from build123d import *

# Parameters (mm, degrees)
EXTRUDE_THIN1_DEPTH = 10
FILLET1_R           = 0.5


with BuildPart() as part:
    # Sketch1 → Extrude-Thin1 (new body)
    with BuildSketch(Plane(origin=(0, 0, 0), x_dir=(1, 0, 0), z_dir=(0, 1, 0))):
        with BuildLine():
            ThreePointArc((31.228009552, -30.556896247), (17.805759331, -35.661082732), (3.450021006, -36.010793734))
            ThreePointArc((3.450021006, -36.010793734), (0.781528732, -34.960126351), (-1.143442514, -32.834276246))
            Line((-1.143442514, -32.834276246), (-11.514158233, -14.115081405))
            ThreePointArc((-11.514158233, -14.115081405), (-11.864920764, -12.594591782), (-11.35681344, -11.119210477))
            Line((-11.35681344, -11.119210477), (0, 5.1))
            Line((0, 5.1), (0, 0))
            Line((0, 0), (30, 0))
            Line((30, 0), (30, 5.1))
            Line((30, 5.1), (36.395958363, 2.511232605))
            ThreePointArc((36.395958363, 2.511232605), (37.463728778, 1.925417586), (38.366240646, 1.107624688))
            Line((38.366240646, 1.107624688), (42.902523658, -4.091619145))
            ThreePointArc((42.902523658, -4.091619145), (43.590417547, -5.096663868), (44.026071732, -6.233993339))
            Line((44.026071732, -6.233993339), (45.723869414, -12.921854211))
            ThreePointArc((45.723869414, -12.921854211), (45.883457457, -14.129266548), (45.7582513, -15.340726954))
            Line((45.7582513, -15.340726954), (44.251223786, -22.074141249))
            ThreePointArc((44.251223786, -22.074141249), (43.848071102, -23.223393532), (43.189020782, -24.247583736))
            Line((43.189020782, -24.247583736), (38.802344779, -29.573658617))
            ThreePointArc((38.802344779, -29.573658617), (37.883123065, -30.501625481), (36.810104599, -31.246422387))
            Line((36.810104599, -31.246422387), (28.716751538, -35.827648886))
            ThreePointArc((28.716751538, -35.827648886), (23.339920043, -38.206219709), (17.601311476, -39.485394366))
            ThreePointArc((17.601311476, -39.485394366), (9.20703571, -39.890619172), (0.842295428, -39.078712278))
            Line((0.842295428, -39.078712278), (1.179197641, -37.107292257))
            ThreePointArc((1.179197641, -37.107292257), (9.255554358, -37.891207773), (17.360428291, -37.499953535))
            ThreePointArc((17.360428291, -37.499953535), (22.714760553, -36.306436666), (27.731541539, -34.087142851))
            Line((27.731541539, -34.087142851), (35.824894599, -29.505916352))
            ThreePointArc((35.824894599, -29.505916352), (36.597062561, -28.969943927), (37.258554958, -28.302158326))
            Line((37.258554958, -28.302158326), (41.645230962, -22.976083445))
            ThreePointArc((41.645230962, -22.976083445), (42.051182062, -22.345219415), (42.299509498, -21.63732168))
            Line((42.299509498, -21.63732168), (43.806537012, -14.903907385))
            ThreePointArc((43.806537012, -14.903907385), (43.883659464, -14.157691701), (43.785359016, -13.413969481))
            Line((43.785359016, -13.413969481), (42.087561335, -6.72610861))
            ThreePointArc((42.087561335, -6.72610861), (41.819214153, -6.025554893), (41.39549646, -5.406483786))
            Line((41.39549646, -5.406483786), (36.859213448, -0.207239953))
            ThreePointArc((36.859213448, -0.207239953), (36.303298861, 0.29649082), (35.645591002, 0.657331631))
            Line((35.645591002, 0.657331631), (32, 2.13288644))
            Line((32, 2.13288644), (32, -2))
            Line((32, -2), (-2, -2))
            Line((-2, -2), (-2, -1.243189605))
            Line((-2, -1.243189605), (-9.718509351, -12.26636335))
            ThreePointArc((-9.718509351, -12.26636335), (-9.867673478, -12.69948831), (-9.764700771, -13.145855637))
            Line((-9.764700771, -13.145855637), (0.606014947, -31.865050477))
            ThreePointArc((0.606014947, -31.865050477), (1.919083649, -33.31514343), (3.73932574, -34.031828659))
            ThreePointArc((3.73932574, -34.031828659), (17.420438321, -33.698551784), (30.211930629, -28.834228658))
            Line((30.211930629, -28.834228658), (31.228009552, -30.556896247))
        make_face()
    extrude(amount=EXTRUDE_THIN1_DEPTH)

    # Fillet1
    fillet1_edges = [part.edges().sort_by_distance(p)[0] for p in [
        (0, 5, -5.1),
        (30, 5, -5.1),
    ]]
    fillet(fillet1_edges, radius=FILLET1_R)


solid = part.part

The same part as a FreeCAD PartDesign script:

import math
import FreeCAD as App
import Part
import Sketcher
Q = App.Units.Quantity


def edges_at(feature, points):
    """Names of the edges that pass closest to the given points."""
    edges = feature.Shape.Edges
    near = lambda p: min(range(len(edges)), key=lambda i: edges[i].distToShape(Part.Vertex(*p))[0])
    return sorted({f"Edge{near(p) + 1}" for p in points})

doc = App.newDocument("Part")
body = doc.addObject("PartDesign::Body", "Body")

# Sketch on XZ plane
sketch1 = body.newObject("Sketcher::SketchObject", "Sketch")
sketch1.AttachmentSupport = (doc.getObject("XZ_Plane"), [""])
sketch1.MapMode = "FlatFace"
sketch1.addGeometry(Part.ArcOfCircle(Part.Circle(App.Vector(9.606298, -6.10071, 0), App.Vector(0, 0, 1), 42.559118), math.radians(59.466673), math.radians(98.317149)), False)
sketch1.addGeometry(Part.LineSegment(App.Vector(31.22801, 30.556896, 0), App.Vector(30.211931, 28.834229, 0)), False)
sketch1.addGeometry(Part.ArcOfCircle(Part.Circle(App.Vector(9.606298, -6.10071, 0), App.Vector(0, 0, 1), 40.559118), math.radians(59.466673), math.radians(98.317149)), False)
sketch1.addGeometry(Part.ArcOfCircle(Part.Circle(App.Vector(4.360139, 29.785209, 0), App.Vector(0, 0, 1), 4.291758), math.radians(98.317149), math.radians(151.012887)), False)
sketch1.addGeometry(Part.LineSegment(App.Vector(0.606015, 31.86505, 0), App.Vector(-9.764701, 13.145856, 0)), False)
sketch1.addGeometry(Part.ArcOfCircle(Part.Circle(App.Vector(-9.037688, 12.74308, 0), App.Vector(0, 0, 1), 0.831129), math.radians(151.012887), math.radians(215)), False)
sketch1.addGeometry(Part.LineSegment(App.Vector(-9.718509, 12.266363, 0), App.Vector(-2, 1.24319, 0)), False)
sketch1.addGeometry(Part.LineSegment(App.Vector(-2, 1.24319, 0), App.Vector(-2, 2, 0)), False)
sketch1.addGeometry(Part.LineSegment(App.Vector(-2, 2, 0), App.Vector(32, 2, 0)), False)
sketch1.addGeometry(Part.LineSegment(App.Vector(32, 2, 0), App.Vector(32, -2.132886, 0)), False)
sketch1.addGeometry(Part.LineSegment(App.Vector(32, -2.132886, 0), App.Vector(35.645591, -0.657332, 0)), False)
sketch1.addGeometry(Part.ArcOfCircle(Part.Circle(App.Vector(34.442061, 2.316179, 0), App.Vector(0, 0, 1), 3.207842), math.radians(-67.964334), math.radians(-41.10434)), False)
sketch1.addGeometry(Part.LineSegment(App.Vector(36.859213, 0.20724, 0), App.Vector(41.395496, 5.406484, 0)), False)
sketch1.addGeometry(Part.ArcOfCircle(Part.Circle(App.Vector(38.978344, 7.515423, 0), App.Vector(0, 0, 1), 3.207842), math.radians(-41.10434), math.radians(-14.244345)), False)
sketch1.addGeometry(Part.LineSegment(App.Vector(42.087561, 6.726109, 0), App.Vector(43.785359, 13.413969, 0)), False)
sketch1.addGeometry(Part.ArcOfCircle(Part.Circle(App.Vector(40.676142, 14.203283, 0), App.Vector(0, 0, 1), 3.207842), math.radians(-14.244345), math.radians(12.615649)), False)
sketch1.addGeometry(Part.LineSegment(App.Vector(43.806537, 14.903907, 0), App.Vector(42.299509, 21.637322, 0)), False)
sketch1.addGeometry(Part.ArcOfCircle(Part.Circle(App.Vector(39.169114, 20.936698, 0), App.Vector(0, 0, 1), 3.207842), math.radians(12.615649), math.radians(39.475644)), False)
sketch1.addGeometry(Part.LineSegment(App.Vector(41.645231, 22.976083, 0), App.Vector(37.258555, 28.302158, 0)), False)
sketch1.addGeometry(Part.ArcOfCircle(Part.Circle(App.Vector(33.296238, 25.038704, 0), App.Vector(0, 0, 1), 5.133234), math.radians(39.475644), math.radians(60.488055)), False)
sketch1.addGeometry(Part.LineSegment(App.Vector(35.824895, 29.505916, 0), App.Vector(27.731542, 34.087143, 0)), False)
sketch1.addGeometry(Part.ArcOfCircle(Part.Circle(App.Vector(14.004071, 9.835719, 0), App.Vector(0, 0, 1), 27.867096), math.radians(60.488055), math.radians(83.082411)), False)
sketch1.addGeometry(Part.ArcOfCircle(Part.Circle(App.Vector(10.614349, -18.103522, 0), App.Vector(0, 0, 1), 56.011213), math.radians(83.082411), math.radians(99.697775)), False)
sketch1.addGeometry(Part.LineSegment(App.Vector(1.179198, 37.107292, 0), App.Vector(0.842295, 39.078712, 0)), False)
sketch1.addGeometry(Part.ArcOfCircle(Part.Circle(App.Vector(10.614349, -18.103522, 0), App.Vector(0, 0, 1), 58.011213), math.radians(83.082411), math.radians(99.697775)), False)
sketch1.addGeometry(Part.ArcOfCircle(Part.Circle(App.Vector(14.004071, 9.835719, 0), App.Vector(0, 0, 1), 29.867096), math.radians(60.488055), math.radians(83.082411)), False)
sketch1.addGeometry(Part.LineSegment(App.Vector(28.716752, 35.827649, 0), App.Vector(36.810105, 31.246422, 0)), False)
sketch1.addGeometry(Part.ArcOfCircle(Part.Circle(App.Vector(33.296238, 25.038704, 0), App.Vector(0, 0, 1), 7.133234), math.radians(39.475644), math.radians(60.488055)), False)
sketch1.addGeometry(Part.LineSegment(App.Vector(38.802345, 29.573659, 0), App.Vector(43.189021, 24.247584, 0)), False)
sketch1.addGeometry(Part.ArcOfCircle(Part.Circle(App.Vector(39.169114, 20.936698, 0), App.Vector(0, 0, 1), 5.207842), math.radians(12.615649), math.radians(39.475644)), False)
sketch1.addGeometry(Part.LineSegment(App.Vector(44.251224, 22.074141, 0), App.Vector(45.758251, 15.340727, 0)), False)
sketch1.addGeometry(Part.ArcOfCircle(Part.Circle(App.Vector(40.676142, 14.203283, 0), App.Vector(0, 0, 1), 5.207842), math.radians(-14.244345), math.radians(12.615649)), False)
sketch1.addGeometry(Part.LineSegment(App.Vector(45.723869, 12.921854, 0), App.Vector(44.026072, 6.233993, 0)), False)
sketch1.addGeometry(Part.ArcOfCircle(Part.Circle(App.Vector(38.978344, 7.515423, 0), App.Vector(0, 0, 1), 5.207842), math.radians(-41.10434), math.radians(-14.244345)), False)
sketch1.addGeometry(Part.LineSegment(App.Vector(42.902524, 4.091619, 0), App.Vector(38.366241, -1.107625, 0)), False)
sketch1.addGeometry(Part.ArcOfCircle(Part.Circle(App.Vector(34.442061, 2.316179, 0), App.Vector(0, 0, 1), 5.207842), math.radians(-67.964334), math.radians(-41.10434)), False)
sketch1.addGeometry(Part.LineSegment(App.Vector(36.395958, -2.511233, 0), App.Vector(30, -5.1, 0)), False)
sketch1.addGeometry(Part.LineSegment(App.Vector(30, -5.1, 0), App.Vector(30, 0, 0)), False)
sketch1.addGeometry(Part.LineSegment(App.Vector(30, 0, 0), App.Vector(0, 0, 0)), False)
sketch1.addGeometry(Part.LineSegment(App.Vector(0, 0, 0), App.Vector(0, -5.1, 0)), False)
sketch1.addGeometry(Part.LineSegment(App.Vector(0, -5.1, 0), App.Vector(-11.356813, 11.11921, 0)), False)
sketch1.addGeometry(Part.ArcOfCircle(Part.Circle(App.Vector(-9.037688, 12.74308, 0), App.Vector(0, 0, 1), 2.831129), math.radians(151.012887), math.radians(215)), False)
sketch1.addGeometry(Part.LineSegment(App.Vector(-11.514158, 14.115081, 0), App.Vector(-1.143443, 32.834276, 0)), False)
sketch1.addGeometry(Part.ArcOfCircle(Part.Circle(App.Vector(4.360139, 29.785209, 0), App.Vector(0, 0, 1), 6.291758), math.radians(98.317149), math.radians(151.012887)), False)
sketch1.addConstraint(Sketcher.Constraint("Coincident", 0, 1, 1, 1))
sketch1.addConstraint(Sketcher.Constraint("Coincident", 1, 2, 2, 1))
sketch1.addConstraint(Sketcher.Constraint("Tangent", 2, 2, 3, 1))
sketch1.addConstraint(Sketcher.Constraint("Tangent", 3, 2, 4, 1))
sketch1.addConstraint(Sketcher.Constraint("Tangent", 4, 2, 5, 1))
sketch1.addConstraint(Sketcher.Constraint("Tangent", 5, 2, 6, 1))
sketch1.addConstraint(Sketcher.Constraint("Coincident", 6, 2, 7, 1))
sketch1.addConstraint(Sketcher.Constraint("Coincident", 7, 2, 8, 1))
sketch1.addConstraint(Sketcher.Constraint("Coincident", 8, 2, 9, 1))
sketch1.addConstraint(Sketcher.Constraint("Coincident", 9, 2, 10, 1))
sketch1.addConstraint(Sketcher.Constraint("Tangent", 10, 2, 11, 1))
sketch1.addConstraint(Sketcher.Constraint("Tangent", 11, 2, 12, 1))
sketch1.addConstraint(Sketcher.Constraint("Tangent", 12, 2, 13, 1))
sketch1.addConstraint(Sketcher.Constraint("Tangent", 13, 2, 14, 1))
sketch1.addConstraint(Sketcher.Constraint("Tangent", 14, 2, 15, 1))
sketch1.addConstraint(Sketcher.Constraint("Tangent", 15, 2, 16, 1))
sketch1.addConstraint(Sketcher.Constraint("Tangent", 16, 2, 17, 1))
sketch1.addConstraint(Sketcher.Constraint("Tangent", 17, 2, 18, 1))
sketch1.addConstraint(Sketcher.Constraint("Tangent", 18, 2, 19, 1))
sketch1.addConstraint(Sketcher.Constraint("Tangent", 19, 2, 20, 1))
sketch1.addConstraint(Sketcher.Constraint("Tangent", 20, 2, 21, 1))
sketch1.addConstraint(Sketcher.Constraint("Tangent", 21, 2, 22, 1))
sketch1.addConstraint(Sketcher.Constraint("Coincident", 22, 2, 23, 1))
sketch1.addConstraint(Sketcher.Constraint("Coincident", 23, 2, 24, 2))
sketch1.addConstraint(Sketcher.Constraint("Tangent", 24, 1, 25, 2))
sketch1.addConstraint(Sketcher.Constraint("Tangent", 25, 1, 26, 1))
sketch1.addConstraint(Sketcher.Constraint("Tangent", 26, 2, 27, 2))
sketch1.addConstraint(Sketcher.Constraint("Tangent", 27, 1, 28, 1))
sketch1.addConstraint(Sketcher.Constraint("Tangent", 28, 2, 29, 2))
sketch1.addConstraint(Sketcher.Constraint("Tangent", 29, 1, 30, 1))
sketch1.addConstraint(Sketcher.Constraint("Tangent", 30, 2, 31, 2))
sketch1.addConstraint(Sketcher.Constraint("Tangent", 31, 1, 32, 1))
sketch1.addConstraint(Sketcher.Constraint("Tangent", 32, 2, 33, 2))
sketch1.addConstraint(Sketcher.Constraint("Tangent", 33, 1, 34, 1))
sketch1.addConstraint(Sketcher.Constraint("Tangent", 34, 2, 35, 2))
sketch1.addConstraint(Sketcher.Constraint("Tangent", 35, 1, 36, 1))
sketch1.addConstraint(Sketcher.Constraint("Coincident", 36, 2, 37, 1))
sketch1.addConstraint(Sketcher.Constraint("Coincident", 37, 2, 38, 1))
sketch1.addConstraint(Sketcher.Constraint("Coincident", 38, 2, 39, 1))
sketch1.addConstraint(Sketcher.Constraint("Coincident", 39, 2, 40, 1))
sketch1.addConstraint(Sketcher.Constraint("Tangent", 40, 2, 41, 2))
sketch1.addConstraint(Sketcher.Constraint("Tangent", 41, 1, 42, 1))
sketch1.addConstraint(Sketcher.Constraint("Tangent", 42, 2, 43, 2))
sketch1.addConstraint(Sketcher.Constraint("Tangent", 43, 1, 0, 2))
sketch1.addConstraint(Sketcher.Constraint("Vertical", 7))
sketch1.addConstraint(Sketcher.Constraint("Horizontal", 8))
sketch1.addConstraint(Sketcher.Constraint("Vertical", 9))
sketch1.addConstraint(Sketcher.Constraint("Vertical", 37))
sketch1.addConstraint(Sketcher.Constraint("Horizontal", 38))
sketch1.addConstraint(Sketcher.Constraint("Vertical", 39))
sketch1.addConstraint(Sketcher.Constraint("Coincident", 38, 2, -1, 1))
sketch1.addConstraint(Sketcher.Constraint("Coincident", 2, 3, 0, 3))
sketch1.addConstraint(Sketcher.Constraint("Coincident", 24, 3, 22, 3))
sketch1.addConstraint(Sketcher.Constraint("Coincident", 25, 3, 21, 3))
sketch1.addConstraint(Sketcher.Constraint("Coincident", 27, 3, 19, 3))
sketch1.addConstraint(Sketcher.Constraint("Coincident", 29, 3, 17, 3))
sketch1.addConstraint(Sketcher.Constraint("Coincident", 31, 3, 15, 3))
sketch1.addConstraint(Sketcher.Constraint("Coincident", 33, 3, 13, 3))
sketch1.addConstraint(Sketcher.Constraint("Coincident", 35, 3, 11, 3))
sketch1.addConstraint(Sketcher.Constraint("Coincident", 41, 3, 5, 3))
sketch1.addConstraint(Sketcher.Constraint("Coincident", 43, 3, 3, 3))
sketch1.addConstraint(Sketcher.Constraint("Equal", 11, 13))
sketch1.addConstraint(Sketcher.Constraint("Equal", 13, 15))
sketch1.addConstraint(Sketcher.Constraint("Equal", 15, 17))
sketch1.addConstraint(Sketcher.Constraint("Equal", 29, 31))
sketch1.addConstraint(Sketcher.Constraint("Equal", 31, 33))
sketch1.addConstraint(Sketcher.Constraint("Equal", 33, 35))
sketch1.addConstraint(Sketcher.Constraint("Parallel", 20, 26))
sketch1.addConstraint(Sketcher.Constraint("Parallel", 18, 28))
sketch1.addConstraint(Sketcher.Constraint("Parallel", 10, 36))
sketch1.addConstraint(Sketcher.Constraint("Parallel", 6, 40))
sketch1.addConstraint(Sketcher.Constraint("Parallel", 4, 42))
sketch1.addConstraint(Sketcher.Constraint("Horizontal", 36, 2, 39, 2))
sketch1.addConstraint(Sketcher.Constraint("Equal", 12, 14))
sketch1.addConstraint(Sketcher.Constraint("Equal", 14, 16))
sketch1.addConstraint(Sketcher.Constraint("Equal", 16, 18))
sketch1.addConstraint(Sketcher.Constraint("Equal", 1, 23))
sketch1.addConstraint(Sketcher.Constraint("Equal", 34, 36))
sketch1.addConstraint(Sketcher.Constraint("DistanceX", 8, 1, 8, 2, 34.0))
sketch1.addConstraint(Sketcher.Constraint("DistanceX", 38, 2, 38, 1, 30.0))
sketch1.addConstraint(Sketcher.Constraint("Angle", 6, Q("-55 deg")))
sketch1.addConstraint(Sketcher.Constraint("Distance", 1, 2.0))
sketch1.addConstraint(Sketcher.Constraint("DistanceY", 37, 1, 37, 2, 5.1))
sketch1.addConstraint(Sketcher.Constraint("DistanceX", 6, 2, -1, 1, 2.0))
sketch1.addConstraint(Sketcher.Constraint("DistanceY", -1, 1, 7, 2, 2.0))
sketch1.addConstraint(Sketcher.Constraint("Distance", 4, 21.4))
sketch1.addConstraint(Sketcher.Constraint("Distance", 12, 6.9))
sketch1.addConstraint(Sketcher.Constraint("Distance", 20, 9.3))
sketch1.addConstraint(Sketcher.Constraint("Distance", 40, 19.8))
sketch1.addConstraint(Sketcher.Constraint("Radius", 5, 0.831129))
sketch1.addConstraint(Sketcher.Constraint("Radius", 11, 3.207842))
sketch1.addConstraint(Sketcher.Constraint("Radius", 0, 42.559118))
sketch1.addConstraint(Sketcher.Constraint("Radius", 3, 4.291758))
sketch1.addConstraint(Sketcher.Constraint("Radius", 19, 5.133234))
sketch1.addConstraint(Sketcher.Constraint("Radius", 21, 27.867096))
sketch1.addConstraint(Sketcher.Constraint("Radius", 22, 56.011213))
sketch1.addConstraint(Sketcher.Constraint("DistanceX", -1, 1, 0, 3, 9.606298))
sketch1.addConstraint(Sketcher.Constraint("DistanceX", 4, 2, -1, 1, 9.764701))
sketch1.addConstraint(Sketcher.Constraint("DistanceY", 9, 2, 9, 1, 4.132886))
sketch1.addConstraint(Sketcher.Constraint("DistanceX", -1, 1, 15, 3, 40.676142))
sketch1.addConstraint(Sketcher.Constraint("DistanceX", -1, 1, 19, 3, 33.296238))
sketch1.addConstraint(Sketcher.Constraint("DistanceX", -1, 1, 21, 3, 14.004071))
sketch1.addConstraint(Sketcher.Constraint("DistanceY", -1, 1, 21, 3, 9.835719))
sketch1.addConstraint(Sketcher.Constraint("DistanceX", -1, 1, 22, 3, 10.614349))
sketch1.addConstraint(Sketcher.Constraint("DistanceX", -1, 1, 0, 1, 31.22801))
sketch1.addConstraint(Sketcher.Constraint("DistanceX", -1, 1, 1, 2, 30.211931))
sketch1.addConstraint(Sketcher.Constraint("DistanceY", -1, 1, 11, 2, 0.20724))
sketch1.addConstraint(Sketcher.Constraint("DistanceX", -1, 1, 22, 2, 1.179198))
sketch1.addConstraint(Sketcher.Constraint("DistanceX", -1, 1, 23, 2, 0.842295))
pad1 = body.newObject("PartDesign::Pad", "Pad")
pad1.Profile = sketch1
pad1.Length = 10
pad1.Reversed = True
doc.recompute()

fillet = body.newObject("PartDesign::Fillet", "Fillet")
fillet.Base = (pad1, edges_at(pad1, [(0, 5, -5.1), (30, 5, -5.1)]))
fillet.Radius = 0.5

doc.recompute()
